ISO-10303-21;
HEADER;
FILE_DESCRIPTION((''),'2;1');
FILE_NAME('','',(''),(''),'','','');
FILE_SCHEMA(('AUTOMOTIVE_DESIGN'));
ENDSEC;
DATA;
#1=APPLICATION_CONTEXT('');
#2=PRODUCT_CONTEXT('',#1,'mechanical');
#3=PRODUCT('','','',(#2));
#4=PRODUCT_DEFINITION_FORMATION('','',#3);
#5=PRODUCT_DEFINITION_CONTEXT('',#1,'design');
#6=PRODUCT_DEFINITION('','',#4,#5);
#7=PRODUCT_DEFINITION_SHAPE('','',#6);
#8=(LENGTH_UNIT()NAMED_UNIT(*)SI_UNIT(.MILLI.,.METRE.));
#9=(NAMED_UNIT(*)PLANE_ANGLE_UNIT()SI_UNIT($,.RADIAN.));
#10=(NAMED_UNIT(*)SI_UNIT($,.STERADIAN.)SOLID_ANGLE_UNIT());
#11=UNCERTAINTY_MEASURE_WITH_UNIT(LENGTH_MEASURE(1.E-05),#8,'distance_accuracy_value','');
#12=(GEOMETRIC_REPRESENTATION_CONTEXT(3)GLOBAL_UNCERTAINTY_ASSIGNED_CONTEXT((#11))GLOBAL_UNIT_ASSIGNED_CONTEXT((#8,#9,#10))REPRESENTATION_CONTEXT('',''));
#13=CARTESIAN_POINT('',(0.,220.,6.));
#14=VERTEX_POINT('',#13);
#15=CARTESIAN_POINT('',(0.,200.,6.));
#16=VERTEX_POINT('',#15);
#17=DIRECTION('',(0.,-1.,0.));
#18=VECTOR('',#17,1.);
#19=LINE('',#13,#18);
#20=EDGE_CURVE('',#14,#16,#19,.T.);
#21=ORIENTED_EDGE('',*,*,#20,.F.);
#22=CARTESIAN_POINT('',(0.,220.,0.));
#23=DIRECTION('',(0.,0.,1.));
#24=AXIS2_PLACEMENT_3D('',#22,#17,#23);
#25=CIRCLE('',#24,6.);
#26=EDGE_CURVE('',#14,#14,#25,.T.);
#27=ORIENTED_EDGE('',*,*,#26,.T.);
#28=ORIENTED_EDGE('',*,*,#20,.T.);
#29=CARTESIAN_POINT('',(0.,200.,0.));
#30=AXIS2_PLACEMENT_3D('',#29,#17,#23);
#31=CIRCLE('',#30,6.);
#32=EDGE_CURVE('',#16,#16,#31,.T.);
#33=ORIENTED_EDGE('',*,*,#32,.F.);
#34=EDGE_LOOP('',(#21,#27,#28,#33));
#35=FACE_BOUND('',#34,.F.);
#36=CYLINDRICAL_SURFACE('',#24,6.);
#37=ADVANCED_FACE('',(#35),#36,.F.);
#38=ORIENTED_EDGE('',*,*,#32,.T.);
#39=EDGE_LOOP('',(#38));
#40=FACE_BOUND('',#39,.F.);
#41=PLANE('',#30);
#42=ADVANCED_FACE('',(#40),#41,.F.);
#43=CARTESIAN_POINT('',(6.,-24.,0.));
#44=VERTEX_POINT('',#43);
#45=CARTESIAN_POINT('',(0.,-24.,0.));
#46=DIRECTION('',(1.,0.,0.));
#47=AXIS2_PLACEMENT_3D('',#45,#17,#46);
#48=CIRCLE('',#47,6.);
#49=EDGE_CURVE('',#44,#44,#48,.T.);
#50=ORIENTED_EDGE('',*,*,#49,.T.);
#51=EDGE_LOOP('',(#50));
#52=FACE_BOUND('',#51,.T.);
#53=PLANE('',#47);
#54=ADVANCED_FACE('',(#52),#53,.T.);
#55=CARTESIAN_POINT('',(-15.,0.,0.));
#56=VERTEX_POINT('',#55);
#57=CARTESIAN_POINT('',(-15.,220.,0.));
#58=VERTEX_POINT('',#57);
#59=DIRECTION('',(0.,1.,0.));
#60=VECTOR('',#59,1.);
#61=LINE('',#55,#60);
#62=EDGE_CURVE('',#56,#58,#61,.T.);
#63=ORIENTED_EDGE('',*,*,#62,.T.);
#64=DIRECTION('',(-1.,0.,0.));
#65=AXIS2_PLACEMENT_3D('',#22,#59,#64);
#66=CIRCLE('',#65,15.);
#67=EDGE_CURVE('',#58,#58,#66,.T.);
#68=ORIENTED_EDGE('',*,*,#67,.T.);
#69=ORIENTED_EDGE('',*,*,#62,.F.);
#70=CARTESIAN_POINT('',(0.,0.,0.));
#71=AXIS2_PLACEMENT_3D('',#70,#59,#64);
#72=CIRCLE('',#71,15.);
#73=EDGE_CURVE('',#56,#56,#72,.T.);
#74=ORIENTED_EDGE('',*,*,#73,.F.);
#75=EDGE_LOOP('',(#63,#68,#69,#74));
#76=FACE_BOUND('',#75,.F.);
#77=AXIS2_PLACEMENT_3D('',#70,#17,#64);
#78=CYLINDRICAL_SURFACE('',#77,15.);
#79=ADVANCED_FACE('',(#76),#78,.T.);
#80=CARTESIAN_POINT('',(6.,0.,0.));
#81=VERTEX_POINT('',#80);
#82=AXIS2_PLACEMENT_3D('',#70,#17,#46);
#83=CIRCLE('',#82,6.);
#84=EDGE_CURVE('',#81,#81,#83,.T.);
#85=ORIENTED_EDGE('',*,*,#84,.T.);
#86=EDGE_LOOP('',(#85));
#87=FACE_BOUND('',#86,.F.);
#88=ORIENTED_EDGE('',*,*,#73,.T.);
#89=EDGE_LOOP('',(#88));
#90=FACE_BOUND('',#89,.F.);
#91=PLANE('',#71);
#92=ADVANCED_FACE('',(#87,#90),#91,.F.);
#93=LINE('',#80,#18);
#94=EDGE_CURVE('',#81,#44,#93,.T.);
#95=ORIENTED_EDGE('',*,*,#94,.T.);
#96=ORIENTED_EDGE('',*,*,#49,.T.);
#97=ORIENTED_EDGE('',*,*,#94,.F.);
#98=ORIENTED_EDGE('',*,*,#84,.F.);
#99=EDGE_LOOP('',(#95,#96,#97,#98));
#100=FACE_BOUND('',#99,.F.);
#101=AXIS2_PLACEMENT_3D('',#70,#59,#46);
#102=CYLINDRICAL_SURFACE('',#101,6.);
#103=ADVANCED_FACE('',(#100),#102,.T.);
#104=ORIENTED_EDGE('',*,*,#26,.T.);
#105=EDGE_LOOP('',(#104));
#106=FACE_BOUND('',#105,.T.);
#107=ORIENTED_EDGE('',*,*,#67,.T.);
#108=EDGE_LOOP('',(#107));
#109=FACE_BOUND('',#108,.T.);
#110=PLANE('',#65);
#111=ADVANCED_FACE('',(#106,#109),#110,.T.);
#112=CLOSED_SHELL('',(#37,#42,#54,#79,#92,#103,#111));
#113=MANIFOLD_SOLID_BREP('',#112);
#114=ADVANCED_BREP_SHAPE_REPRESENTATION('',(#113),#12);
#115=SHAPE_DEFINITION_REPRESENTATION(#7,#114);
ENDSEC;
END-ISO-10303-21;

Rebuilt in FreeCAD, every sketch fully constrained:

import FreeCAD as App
import Part
import Sketcher

V = App.Vector
Q = App.Units.Quantity

doc = App.newDocument("Part")
params = doc.addObject("Spreadsheet::Sheet", "Params")
for row, (alias, value) in enumerate([
    ("sketch1_diameter", "30 mm"),
    ("pad1_length", "220 mm"),
    ("sketch2_diameter", "12 mm"),
    ("pad2_length", "24 mm"),
    ("sketch3_diameter", "12 mm"),
    ("hole_diameter", "12 mm"),
    ("hole_depth", "20 mm"),
], start=1):
    params.set(f"A{row}", alias)
    params.set(f"B{row}", "=" + value)
    params.setAlias(f"B{row}", alias)

body = doc.addObject("PartDesign::Body", "Body")

# Sketch on XZ plane
sketch1 = body.newObject("Sketcher::SketchObject", "Sketch")
sketch1.AttachmentSupport = (doc.getObject("XZ_Plane"), [""])
sketch1.MapMode = "FlatFace"
sketch1.addGeometry(Part.Circle(V(0, 0, 0), V(0, 0, 1), 15), False)
sketch1.addConstraint(Sketcher.Constraint("Coincident", 0, 3, -1, 1))
sketch1.addConstraint(Sketcher.Constraint("Diameter", 0, Q("30 mm")))
sketch1.setExpression("Constraints[1]", "Params.sketch1_diameter")
pad1 = body.newObject("PartDesign::Pad", "Pad")
pad1.Profile = sketch1
pad1.setExpression("Length", "Params.pad1_length")
pad1.Reversed = True

# Sketch on XZ plane
sketch2 = body.newObject("Sketcher::SketchObject", "Sketch001")
sketch2.AttachmentSupport = (doc.getObject("XZ_Plane"), [""])
sketch2.MapMode = "FlatFace"
sketch2.addGeometry(Part.Circle(V(0, 0, 0), V(0, 0, 1), 6), False)
sketch2.addConstraint(Sketcher.Constraint("Coincident", 0, 3, -1, 1))
sketch2.addConstraint(Sketcher.Constraint("Diameter", 0, Q("12 mm")))
sketch2.setExpression("Constraints[1]", "Params.sketch2_diameter")
pad2 = body.newObject("PartDesign::Pad", "Pad001")
pad2.Profile = sketch2
pad2.setExpression("Length", "Params.pad2_length")

# Sketch on XZ plane
sketch3 = body.newObject("Sketcher::SketchObject", "Sketch002")
sketch3.AttachmentSupport = (doc.getObject("XZ_Plane"), [""])
sketch3.MapMode = "FlatFace"
sketch3.AttachmentOffset = App.Placement(V(0, 0, -220), App.Rotation())
sketch3.addGeometry(Part.Circle(V(0, 0, 0), V(0, 0, 1), 6), False)
sketch3.addConstraint(Sketcher.Constraint("Coincident", 0, 3, -1, 1))
sketch3.addConstraint(Sketcher.Constraint("Diameter", 0, Q("12 mm")))
sketch3.setExpression("Constraints[1]", "Params.sketch3_diameter")
doc.recompute()
hole = body.newObject("PartDesign::Hole", "Hole")
hole.Profile = sketch3
hole.ThreadType = "None"
hole.setExpression("Diameter", "Params.hole_diameter")
hole.DepthType = "Dimension"
hole.setExpression("Depth", "Params.hole_depth")
hole.DrillPoint = "Flat"
hole.Reversed = True

doc.recompute()
